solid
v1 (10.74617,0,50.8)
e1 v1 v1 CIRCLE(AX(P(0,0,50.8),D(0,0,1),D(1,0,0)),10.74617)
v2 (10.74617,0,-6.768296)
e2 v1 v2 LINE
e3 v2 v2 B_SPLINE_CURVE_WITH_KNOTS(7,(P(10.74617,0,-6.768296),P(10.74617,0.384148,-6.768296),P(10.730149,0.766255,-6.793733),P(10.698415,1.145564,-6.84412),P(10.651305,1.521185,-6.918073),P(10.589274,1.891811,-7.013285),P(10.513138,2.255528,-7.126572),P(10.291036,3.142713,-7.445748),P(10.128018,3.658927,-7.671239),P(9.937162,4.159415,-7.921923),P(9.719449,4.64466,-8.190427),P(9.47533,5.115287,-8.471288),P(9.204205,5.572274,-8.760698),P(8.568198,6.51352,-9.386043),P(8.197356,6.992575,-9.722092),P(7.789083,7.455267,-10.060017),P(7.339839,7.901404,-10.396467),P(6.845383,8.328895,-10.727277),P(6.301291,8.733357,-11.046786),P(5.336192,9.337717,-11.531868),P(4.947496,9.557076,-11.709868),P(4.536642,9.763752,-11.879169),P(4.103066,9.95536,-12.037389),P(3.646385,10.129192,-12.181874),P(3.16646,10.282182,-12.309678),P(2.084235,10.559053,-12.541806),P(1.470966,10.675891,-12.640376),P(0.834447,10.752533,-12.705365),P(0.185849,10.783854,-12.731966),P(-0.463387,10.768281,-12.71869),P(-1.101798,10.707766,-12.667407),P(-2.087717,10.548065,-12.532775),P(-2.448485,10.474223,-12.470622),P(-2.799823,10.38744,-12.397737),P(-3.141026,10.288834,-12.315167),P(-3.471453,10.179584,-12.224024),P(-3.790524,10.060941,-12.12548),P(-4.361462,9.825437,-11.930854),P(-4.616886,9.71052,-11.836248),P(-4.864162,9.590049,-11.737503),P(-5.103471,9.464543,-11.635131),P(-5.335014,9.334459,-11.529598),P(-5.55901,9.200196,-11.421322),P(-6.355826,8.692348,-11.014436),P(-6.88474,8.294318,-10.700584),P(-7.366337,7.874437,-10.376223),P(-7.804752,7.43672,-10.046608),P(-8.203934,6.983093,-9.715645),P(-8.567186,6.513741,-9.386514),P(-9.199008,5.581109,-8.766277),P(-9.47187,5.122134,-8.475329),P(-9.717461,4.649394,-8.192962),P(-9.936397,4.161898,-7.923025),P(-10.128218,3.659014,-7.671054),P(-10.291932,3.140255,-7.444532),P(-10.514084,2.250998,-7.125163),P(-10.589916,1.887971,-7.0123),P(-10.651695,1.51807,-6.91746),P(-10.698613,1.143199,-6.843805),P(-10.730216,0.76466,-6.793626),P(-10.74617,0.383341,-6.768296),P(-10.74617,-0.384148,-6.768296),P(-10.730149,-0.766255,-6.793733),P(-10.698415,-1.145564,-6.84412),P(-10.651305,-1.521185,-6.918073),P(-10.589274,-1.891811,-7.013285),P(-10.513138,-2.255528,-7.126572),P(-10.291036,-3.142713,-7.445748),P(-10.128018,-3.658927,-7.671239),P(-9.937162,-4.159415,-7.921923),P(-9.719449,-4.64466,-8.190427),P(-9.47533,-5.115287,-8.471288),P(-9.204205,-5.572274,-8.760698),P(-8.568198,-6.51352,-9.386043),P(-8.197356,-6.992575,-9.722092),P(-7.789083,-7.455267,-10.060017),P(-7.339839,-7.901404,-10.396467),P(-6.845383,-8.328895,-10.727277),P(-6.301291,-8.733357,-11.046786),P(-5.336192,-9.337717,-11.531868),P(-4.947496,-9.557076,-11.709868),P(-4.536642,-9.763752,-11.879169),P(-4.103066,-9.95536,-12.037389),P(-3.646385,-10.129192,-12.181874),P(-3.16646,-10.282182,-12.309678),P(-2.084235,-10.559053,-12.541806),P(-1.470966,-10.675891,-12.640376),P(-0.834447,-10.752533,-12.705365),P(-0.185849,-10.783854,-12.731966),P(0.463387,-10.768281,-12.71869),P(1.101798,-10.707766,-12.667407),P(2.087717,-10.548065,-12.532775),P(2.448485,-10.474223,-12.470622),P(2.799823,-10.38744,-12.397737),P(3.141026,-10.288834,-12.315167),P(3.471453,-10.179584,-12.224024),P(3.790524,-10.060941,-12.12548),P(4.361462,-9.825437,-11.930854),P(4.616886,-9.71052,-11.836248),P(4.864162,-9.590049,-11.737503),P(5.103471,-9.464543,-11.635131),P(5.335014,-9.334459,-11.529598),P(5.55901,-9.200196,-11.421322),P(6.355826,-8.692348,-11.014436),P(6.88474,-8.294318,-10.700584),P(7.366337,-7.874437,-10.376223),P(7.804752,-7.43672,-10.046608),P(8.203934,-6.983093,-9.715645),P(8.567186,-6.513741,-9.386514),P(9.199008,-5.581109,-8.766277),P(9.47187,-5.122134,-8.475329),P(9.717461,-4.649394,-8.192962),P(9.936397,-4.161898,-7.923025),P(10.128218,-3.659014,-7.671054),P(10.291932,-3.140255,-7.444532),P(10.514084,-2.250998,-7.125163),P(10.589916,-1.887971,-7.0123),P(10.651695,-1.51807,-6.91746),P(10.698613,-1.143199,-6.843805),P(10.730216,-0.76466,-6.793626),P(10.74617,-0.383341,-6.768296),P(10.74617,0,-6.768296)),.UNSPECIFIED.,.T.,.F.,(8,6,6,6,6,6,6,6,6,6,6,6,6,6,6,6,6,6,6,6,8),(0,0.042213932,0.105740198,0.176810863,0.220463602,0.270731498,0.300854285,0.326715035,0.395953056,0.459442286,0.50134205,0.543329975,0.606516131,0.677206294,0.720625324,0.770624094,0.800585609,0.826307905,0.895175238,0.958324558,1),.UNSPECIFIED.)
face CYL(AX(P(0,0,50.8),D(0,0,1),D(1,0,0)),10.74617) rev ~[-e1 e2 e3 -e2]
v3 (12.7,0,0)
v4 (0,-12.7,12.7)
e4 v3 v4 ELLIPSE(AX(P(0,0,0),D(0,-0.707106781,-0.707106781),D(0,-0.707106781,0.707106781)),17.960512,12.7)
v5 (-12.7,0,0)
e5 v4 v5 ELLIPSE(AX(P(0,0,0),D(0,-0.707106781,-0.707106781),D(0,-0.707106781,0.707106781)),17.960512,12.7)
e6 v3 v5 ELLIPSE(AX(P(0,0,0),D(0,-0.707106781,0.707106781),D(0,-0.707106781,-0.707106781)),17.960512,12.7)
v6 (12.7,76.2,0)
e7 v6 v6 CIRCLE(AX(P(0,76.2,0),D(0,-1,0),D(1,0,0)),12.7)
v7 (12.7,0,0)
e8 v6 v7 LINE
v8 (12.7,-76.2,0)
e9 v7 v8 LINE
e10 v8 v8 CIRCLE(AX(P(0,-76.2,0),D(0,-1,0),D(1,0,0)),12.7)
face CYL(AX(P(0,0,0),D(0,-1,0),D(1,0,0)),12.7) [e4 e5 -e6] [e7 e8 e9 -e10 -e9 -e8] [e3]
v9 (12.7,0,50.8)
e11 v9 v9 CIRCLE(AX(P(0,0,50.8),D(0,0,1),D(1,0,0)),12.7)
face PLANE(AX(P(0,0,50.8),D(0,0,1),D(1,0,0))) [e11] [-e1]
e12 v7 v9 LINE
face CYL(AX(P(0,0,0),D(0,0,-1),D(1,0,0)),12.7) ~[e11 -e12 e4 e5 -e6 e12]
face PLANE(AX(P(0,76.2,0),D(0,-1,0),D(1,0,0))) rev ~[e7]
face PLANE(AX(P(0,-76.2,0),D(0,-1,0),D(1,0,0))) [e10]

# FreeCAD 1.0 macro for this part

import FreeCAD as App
import Part
import Sketcher
from FreeCAD import Vector
Q = App.Units.Quantity

doc = App.newDocument("Part")
body = doc.addObject("PartDesign::Body", "Body")

# Sketch on XZ plane
sketch1 = body.newObject("Sketcher::SketchObject", "Sketch")
sketch1.AttachmentSupport = (doc.getObject("XZ_Plane"), [""])
sketch1.MapMode = "FlatFace"
sketch1.addGeometry(Part.Circle(Vector(0, 0, 0), Vector(0, 0, 1), 12.7), False)
sketch1.addConstraint([
    Sketcher.Constraint("Coincident", 0, 3, -1, 1),
    Sketcher.Constraint("Diameter", 0, Q("1 in")),
])
pad1 = body.newObject("PartDesign::Pad", "Pad")
pad1.Profile = sketch1
pad1.Length = Q("6 in")
pad1.Midplane = True

# Sketch on XY plane
sketch2 = body.newObject("Sketcher::SketchObject", "Sketch001")
sketch2.AttachmentSupport = (doc.getObject("XY_Plane"), [""])
sketch2.MapMode = "FlatFace"
sketch2.addGeometry(Part.Circle(Vector(0, 0, 0), Vector(0, 0, 1), 12.7), False)
sketch2.addConstraint([
    Sketcher.Constraint("Coincident", 0, 3, -1, 1),
    Sketcher.Constraint("Diameter", 0, Q("1 in")),
])
pad2 = body.newObject("PartDesign::Pad", "Pad001")
pad2.Profile = sketch2
pad2.Length = Q("2 in")

# Sketch on XY plane
sketch3 = body.newObject("Sketcher::SketchObject", "Sketch002")
sketch3.AttachmentSupport = (doc.getObject("XY_Plane"), [""])
sketch3.MapMode = "FlatFace"
sketch3.AttachmentOffset = App.Placement(Vector(0, 0, 2 * 25.4), App.Rotation())
sketch3.addGeometry(Part.Circle(Vector(0, 0, 0), Vector(0, 0, 1), 10.74617), False)
sketch3.addConstraint([
    Sketcher.Constraint("Coincident", 0, 3, -1, 1),
    Sketcher.Constraint("Diameter", 0, Q("21.49234 mm")),
])
pocket1 = body.newObject("PartDesign::Pocket", "Pocket")
pocket1.Profile = sketch3
pocket1.Type = "ThroughAll"

doc.recompute()
